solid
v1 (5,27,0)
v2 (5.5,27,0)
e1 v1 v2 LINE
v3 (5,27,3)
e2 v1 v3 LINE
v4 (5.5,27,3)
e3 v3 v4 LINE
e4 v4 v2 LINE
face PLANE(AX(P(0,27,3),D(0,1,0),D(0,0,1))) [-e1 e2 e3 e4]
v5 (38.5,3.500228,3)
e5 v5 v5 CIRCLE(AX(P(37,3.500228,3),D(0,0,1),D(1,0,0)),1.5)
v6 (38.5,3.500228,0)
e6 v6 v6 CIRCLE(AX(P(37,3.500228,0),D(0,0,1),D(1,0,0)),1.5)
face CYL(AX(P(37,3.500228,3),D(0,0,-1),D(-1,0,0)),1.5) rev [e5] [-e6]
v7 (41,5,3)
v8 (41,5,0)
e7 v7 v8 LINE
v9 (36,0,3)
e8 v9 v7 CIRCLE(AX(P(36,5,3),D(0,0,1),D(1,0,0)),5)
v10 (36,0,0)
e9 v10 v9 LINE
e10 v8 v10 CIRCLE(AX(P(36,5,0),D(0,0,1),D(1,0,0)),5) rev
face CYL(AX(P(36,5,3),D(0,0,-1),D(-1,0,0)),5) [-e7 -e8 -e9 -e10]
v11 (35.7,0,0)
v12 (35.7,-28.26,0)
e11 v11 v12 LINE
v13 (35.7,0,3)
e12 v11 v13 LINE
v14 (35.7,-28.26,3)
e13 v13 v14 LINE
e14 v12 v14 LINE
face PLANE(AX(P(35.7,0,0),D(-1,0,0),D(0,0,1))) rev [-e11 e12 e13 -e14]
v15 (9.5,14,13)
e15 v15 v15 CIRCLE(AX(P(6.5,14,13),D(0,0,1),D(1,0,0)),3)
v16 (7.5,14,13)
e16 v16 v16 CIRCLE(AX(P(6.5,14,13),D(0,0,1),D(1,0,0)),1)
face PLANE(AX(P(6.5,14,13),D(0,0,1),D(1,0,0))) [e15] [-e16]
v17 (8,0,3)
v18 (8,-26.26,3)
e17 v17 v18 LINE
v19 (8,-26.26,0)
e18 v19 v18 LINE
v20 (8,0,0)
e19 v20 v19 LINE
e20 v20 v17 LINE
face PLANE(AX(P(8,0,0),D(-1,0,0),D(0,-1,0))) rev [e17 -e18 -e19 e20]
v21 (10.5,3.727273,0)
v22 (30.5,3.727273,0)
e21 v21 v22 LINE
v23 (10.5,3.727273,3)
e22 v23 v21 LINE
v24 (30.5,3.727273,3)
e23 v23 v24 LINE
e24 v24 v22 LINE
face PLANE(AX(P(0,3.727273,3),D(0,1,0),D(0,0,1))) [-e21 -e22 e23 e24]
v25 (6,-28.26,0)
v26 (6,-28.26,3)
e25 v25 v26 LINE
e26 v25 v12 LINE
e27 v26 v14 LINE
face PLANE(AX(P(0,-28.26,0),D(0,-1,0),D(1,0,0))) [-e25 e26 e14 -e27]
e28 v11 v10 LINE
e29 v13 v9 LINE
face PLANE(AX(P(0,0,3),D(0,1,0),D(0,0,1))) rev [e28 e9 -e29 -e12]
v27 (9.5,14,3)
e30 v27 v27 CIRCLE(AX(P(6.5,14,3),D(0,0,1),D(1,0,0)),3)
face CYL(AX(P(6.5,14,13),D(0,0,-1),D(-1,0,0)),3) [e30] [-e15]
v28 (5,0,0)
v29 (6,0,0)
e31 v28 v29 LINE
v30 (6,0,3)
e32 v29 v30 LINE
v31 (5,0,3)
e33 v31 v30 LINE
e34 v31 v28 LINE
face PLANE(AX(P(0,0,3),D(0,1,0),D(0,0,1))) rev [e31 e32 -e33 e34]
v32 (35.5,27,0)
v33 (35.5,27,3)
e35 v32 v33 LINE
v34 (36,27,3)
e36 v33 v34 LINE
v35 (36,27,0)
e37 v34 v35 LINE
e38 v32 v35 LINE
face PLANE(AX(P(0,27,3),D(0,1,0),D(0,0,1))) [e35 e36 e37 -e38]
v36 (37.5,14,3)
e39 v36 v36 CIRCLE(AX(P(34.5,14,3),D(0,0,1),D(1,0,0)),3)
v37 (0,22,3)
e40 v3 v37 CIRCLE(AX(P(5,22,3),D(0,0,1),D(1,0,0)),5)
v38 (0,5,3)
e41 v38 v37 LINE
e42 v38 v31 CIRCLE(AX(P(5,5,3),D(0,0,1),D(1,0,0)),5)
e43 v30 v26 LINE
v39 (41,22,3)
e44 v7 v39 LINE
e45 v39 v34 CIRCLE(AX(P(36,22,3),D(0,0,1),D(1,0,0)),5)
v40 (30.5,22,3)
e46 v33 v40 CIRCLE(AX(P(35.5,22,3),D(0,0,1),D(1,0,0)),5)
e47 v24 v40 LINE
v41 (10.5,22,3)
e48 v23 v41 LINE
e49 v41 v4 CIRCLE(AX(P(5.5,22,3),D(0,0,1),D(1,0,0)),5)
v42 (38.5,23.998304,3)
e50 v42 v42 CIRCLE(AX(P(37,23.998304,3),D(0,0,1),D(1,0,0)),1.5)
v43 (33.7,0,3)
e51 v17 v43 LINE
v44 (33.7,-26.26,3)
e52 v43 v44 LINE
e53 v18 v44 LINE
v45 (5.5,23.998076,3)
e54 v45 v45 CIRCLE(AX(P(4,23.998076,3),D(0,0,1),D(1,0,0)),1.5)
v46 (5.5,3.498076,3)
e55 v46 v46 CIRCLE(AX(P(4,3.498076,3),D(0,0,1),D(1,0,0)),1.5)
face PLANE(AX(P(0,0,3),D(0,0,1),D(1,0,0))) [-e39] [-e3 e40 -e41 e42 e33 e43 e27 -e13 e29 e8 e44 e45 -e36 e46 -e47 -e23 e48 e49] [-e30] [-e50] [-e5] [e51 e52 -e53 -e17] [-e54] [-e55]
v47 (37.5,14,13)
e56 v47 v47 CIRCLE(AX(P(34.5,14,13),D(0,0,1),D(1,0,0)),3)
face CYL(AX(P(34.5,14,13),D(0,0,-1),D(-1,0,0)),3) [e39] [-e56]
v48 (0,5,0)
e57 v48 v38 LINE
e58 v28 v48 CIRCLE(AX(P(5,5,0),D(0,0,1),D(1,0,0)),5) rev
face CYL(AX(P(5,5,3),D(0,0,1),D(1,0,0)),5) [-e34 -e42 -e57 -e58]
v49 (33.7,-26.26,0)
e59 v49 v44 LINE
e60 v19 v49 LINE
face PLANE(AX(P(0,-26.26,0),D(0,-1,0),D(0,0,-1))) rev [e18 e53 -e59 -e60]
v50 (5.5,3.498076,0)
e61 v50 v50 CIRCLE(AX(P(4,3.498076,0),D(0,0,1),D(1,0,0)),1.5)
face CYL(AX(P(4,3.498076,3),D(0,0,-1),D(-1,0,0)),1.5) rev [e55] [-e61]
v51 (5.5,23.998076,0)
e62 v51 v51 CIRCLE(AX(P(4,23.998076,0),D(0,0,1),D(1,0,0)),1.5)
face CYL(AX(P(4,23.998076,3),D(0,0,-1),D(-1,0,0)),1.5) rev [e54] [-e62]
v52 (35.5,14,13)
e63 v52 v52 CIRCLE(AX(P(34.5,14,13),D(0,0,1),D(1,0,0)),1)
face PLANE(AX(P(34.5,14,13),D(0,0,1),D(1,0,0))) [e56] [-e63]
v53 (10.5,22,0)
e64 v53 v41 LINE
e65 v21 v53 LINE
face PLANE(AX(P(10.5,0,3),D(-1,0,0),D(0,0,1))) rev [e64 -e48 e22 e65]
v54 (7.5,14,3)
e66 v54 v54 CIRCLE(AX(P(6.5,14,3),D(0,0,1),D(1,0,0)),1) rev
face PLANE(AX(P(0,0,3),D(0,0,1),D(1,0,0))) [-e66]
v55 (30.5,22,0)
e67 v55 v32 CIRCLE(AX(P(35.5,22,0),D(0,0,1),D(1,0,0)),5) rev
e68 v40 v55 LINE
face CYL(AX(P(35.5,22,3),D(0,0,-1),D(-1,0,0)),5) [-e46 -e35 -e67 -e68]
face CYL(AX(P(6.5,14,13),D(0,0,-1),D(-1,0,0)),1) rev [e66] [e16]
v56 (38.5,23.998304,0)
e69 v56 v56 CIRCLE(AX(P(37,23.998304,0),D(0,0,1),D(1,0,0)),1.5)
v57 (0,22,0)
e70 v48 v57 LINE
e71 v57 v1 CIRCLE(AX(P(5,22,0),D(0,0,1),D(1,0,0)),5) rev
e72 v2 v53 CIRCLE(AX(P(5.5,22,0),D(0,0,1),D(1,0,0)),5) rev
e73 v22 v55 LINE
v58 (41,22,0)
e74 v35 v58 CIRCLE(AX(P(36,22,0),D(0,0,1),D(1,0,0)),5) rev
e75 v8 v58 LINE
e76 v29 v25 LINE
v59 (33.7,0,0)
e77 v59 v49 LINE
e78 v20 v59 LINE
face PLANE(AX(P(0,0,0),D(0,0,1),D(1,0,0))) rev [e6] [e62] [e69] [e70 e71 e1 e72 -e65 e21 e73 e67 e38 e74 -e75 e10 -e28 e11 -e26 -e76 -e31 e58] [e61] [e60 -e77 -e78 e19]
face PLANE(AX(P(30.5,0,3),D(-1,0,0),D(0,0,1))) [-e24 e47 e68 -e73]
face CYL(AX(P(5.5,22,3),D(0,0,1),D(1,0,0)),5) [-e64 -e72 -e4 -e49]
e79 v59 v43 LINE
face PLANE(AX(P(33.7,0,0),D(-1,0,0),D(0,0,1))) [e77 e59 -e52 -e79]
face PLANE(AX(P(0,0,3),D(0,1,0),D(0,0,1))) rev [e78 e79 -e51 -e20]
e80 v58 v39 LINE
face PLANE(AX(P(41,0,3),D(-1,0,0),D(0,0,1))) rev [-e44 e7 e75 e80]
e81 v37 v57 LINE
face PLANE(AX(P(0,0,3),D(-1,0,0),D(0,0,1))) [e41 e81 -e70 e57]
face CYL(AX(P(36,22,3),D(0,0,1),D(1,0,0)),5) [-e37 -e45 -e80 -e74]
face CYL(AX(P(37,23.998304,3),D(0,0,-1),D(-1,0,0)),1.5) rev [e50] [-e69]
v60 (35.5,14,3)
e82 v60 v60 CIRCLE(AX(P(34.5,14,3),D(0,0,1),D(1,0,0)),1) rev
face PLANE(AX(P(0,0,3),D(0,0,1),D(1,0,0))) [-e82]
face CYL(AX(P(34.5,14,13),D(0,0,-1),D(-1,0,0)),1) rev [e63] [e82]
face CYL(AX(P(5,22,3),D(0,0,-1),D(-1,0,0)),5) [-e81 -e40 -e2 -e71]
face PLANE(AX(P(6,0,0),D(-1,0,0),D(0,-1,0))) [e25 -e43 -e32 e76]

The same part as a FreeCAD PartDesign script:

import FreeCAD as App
import Part
import Sketcher
Q = App.Units.Quantity


def edges_at(feature, points):
    """Names of the edges that pass closest to the given points."""
    edges = feature.Shape.Edges
    near = lambda p: min(range(len(edges)), key=lambda i: edges[i].distToShape(Part.Vertex(*p))[0])
    return sorted({f"Edge{near(p) + 1}" for p in points})


def add_polygon(sketch, points):
    """Adds a closed chain of lines whose ends are joined by coincident constraints."""
    first, n = sketch.GeometryCount, len(points)
    for a, b in zip(points, points[1:] + points[:1]):
        sketch.addGeometry(Part.LineSegment(App.Vector(*a, 0), App.Vector(*b, 0)), False)
    for i in range(n):
        sketch.addConstraint(Sketcher.Constraint("Coincident", first + i, 2, first + (i + 1) % n, 1))

doc = App.newDocument("Part")
body = doc.addObject("PartDesign::Body", "Body")

sketch1 = body.newObject("Sketcher::SketchObject", "Sketch")
sketch1.AttachmentSupport = (doc.getObject("XY_Plane"), [""])
sketch1.MapMode = "FlatFace"
add_polygon(sketch1, [(0, 27), (0, 0), (41, 0), (41, 27), (30.5, 27), (30.5, 3.7), (10.5, 3.7), (10.5, 27)])
sketch1.addGeometry(Part.Circle(App.Vector(4, 3.5, 0), App.Vector(0, 0, 1), 1.5), False)
sketch1.addGeometry(Part.Circle(App.Vector(37, 3.5, 0), App.Vector(0, 0, 1), 1.5), False)
sketch1.addGeometry(Part.Circle(App.Vector(4, 24, 0), App.Vector(0, 0, 1), 1.5), False)
sketch1.addGeometry(Part.Circle(App.Vector(37, 24, 0), App.Vector(0, 0, 1), 1.5), False)
sketch1.addConstraint(Sketcher.Constraint("Vertical", 0))
sketch1.addConstraint(Sketcher.Constraint("Horizontal", 1))
sketch1.addConstraint(Sketcher.Constraint("Vertical", 2))
sketch1.addConstraint(Sketcher.Constraint("Horizontal", 3))
sketch1.addConstraint(Sketcher.Constraint("Vertical", 4))
sketch1.addConstraint(Sketcher.Constraint("Horizontal", 5))
sketch1.addConstraint(Sketcher.Constraint("Vertical", 6))
sketch1.addConstraint(Sketcher.Constraint("Horizontal", 7))
sketch1.addConstraint(Sketcher.Constraint("Coincident", 0, 2, -1, 1))
sketch1.addConstraint(Sketcher.Constraint("Equal", 8, 9))
sketch1.addConstraint(Sketcher.Constraint("Equal", 9, 10))
sketch1.addConstraint(Sketcher.Constraint("Equal", 10, 11))
sketch1.addConstraint(Sketcher.Constraint("Horizontal", 3, 2, 6, 2))
sketch1.addConstraint(Sketcher.Constraint("Vertical", 8, 3, 10, 3))
sketch1.addConstraint(Sketcher.Constraint("Vertical", 9, 3, 11, 3))
sketch1.addConstraint(Sketcher.Constraint("Equal", 3, 7))
sketch1.addConstraint(Sketcher.Constraint("Diameter", 8, Q("3 mm")))
sketch1.addConstraint(Sketcher.Constraint("DistanceX", 1, 1, 1, 2, Q("41 mm")))
sketch1.addConstraint(Sketcher.Constraint("DistanceX", 5, 2, 5, 1, Q("20 mm")))
sketch1.addConstraint(Sketcher.Constraint("DistanceY", 0, 2, 0, 1, Q("27 mm")))
sketch1.addConstraint(Sketcher.Constraint("DistanceX", -1, 1, 8, 3, Q("4 mm")))
sketch1.addConstraint(Sketcher.Constraint("DistanceX", -1, 1, 9, 3, Q("37 mm")))
sketch1.addConstraint(Sketcher.Constraint("DistanceY", 8, 3, 10, 3, Q("20.5 mm")))
sketch1.addConstraint(Sketcher.Constraint("DistanceY", 4, 2, 4, 1, Q("23.272727 mm")))
sketch1.addConstraint(Sketcher.Constraint("DistanceY", -1, 1, 9, 3, Q("3.500228 mm")))
sketch1.addConstraint(Sketcher.Constraint("DistanceY", 10, 3, 11, 3, Q("0.000228 mm")))
sketch1.addConstraint(Sketcher.Constraint("DistanceY", 4, 2, 11, 3, Q("20.271032 mm")))
pad1 = body.newObject("PartDesign::Pad", "Pad")
pad1.Profile = sketch1
pad1.Length = 3

sketch2 = body.newObject("Sketcher::SketchObject", "Sketch001")
sketch2.AttachmentSupport = (doc.getObject("XY_Plane"), [""])
sketch2.MapMode = "FlatFace"
sketch2.AttachmentOffset = App.Placement(App.Vector(0, 0, 3), App.Rotation())
sketch2.addGeometry(Part.Circle(App.Vector(6.5, 14, 0), App.Vector(0, 0, 1), 3), False)
sketch2.addGeometry(Part.Circle(App.Vector(6.5, 14, 0), App.Vector(0, 0, 1), 1), False)
sketch2.addGeometry(Part.Circle(App.Vector(34.5, 14, 0), App.Vector(0, 0, 1), 3), False)
sketch2.addGeometry(Part.Circle(App.Vector(34.5, 14, 0), App.Vector(0, 0, 1), 1), False)
sketch2.addConstraint(Sketcher.Constraint("Coincident", 1, 3, 0, 3))
sketch2.addConstraint(Sketcher.Constraint("Coincident", 3, 3, 2, 3))
sketch2.addConstraint(Sketcher.Constraint("Equal", 0, 2))
sketch2.addConstraint(Sketcher.Constraint("Equal", 1, 3))
sketch2.addConstraint(Sketcher.Constraint("Horizontal", 1, 3, 2, 3))
sketch2.addConstraint(Sketcher.Constraint("Diameter", 0, Q("6 mm")))
sketch2.addConstraint(Sketcher.Constraint("Diameter", 1, Q("2 mm")))
sketch2.addConstraint(Sketcher.Constraint("DistanceY", -1, 1, 0, 3, Q("14 mm")))
sketch2.addConstraint(Sketcher.Constraint("DistanceX", 0, 3, 2, 3, Q("28 mm")))
sketch2.addConstraint(Sketcher.Constraint("DistanceX", -1, 1, 0, 3, Q("6.5 mm")))
pad2 = body.newObject("PartDesign::Pad", "Pad001")
pad2.Profile = sketch2
pad2.Length = 10
doc.recompute()

fillet = body.newObject("PartDesign::Fillet", "Fillet")
fillet.Base = (pad2, edges_at(pad2, [
    (30.5, 27, 1.5),
    (41, 27, 1.5),
    (41, 0, 1.5),
    (0, 0, 1.5),
    (0, 27, 1.5),
    (10.5, 27, 1.5),
]))
fillet.Radius = 5

sketch3 = body.newObject("Sketcher::SketchObject", "Sketch002")
sketch3.AttachmentSupport = (doc.getObject("XY_Plane"), [""])
sketch3.MapMode = "FlatFace"
sketch3.AttachmentOffset = App.Placement(App.Vector(0, 0, 3), App.Rotation())
add_polygon(sketch3, [(8, 0), (6, 0), (6, -28.3), (35.7, -28.3), (35.7, 0), (33.7, 0), (33.7, -26.3), (8, -26.3)])
sketch3.addConstraint(Sketcher.Constraint("Horizontal", 0))
sketch3.addConstraint(Sketcher.Constraint("Vertical", 1))
sketch3.addConstraint(Sketcher.Constraint("Horizontal", 2))
sketch3.addConstraint(Sketcher.Constraint("Vertical", 3))
sketch3.addConstraint(Sketcher.Constraint("Horizontal", 4))
sketch3.addConstraint(Sketcher.Constraint("Vertical", 5))
sketch3.addConstraint(Sketcher.Constraint("Horizontal", 6))
sketch3.addConstraint(Sketcher.Constraint("Vertical", 7))
sketch3.addConstraint(Sketcher.Constraint("PointOnObject", 0, 2, -1))
sketch3.addConstraint(Sketcher.Constraint("PointOnObject", 3, 2, -1))
sketch3.addConstraint(Sketcher.Constraint("Equal", 0, 4))
sketch3.addConstraint(Sketcher.Constraint("DistanceX", 0, 2, 0, 1, Q("2 mm")))
sketch3.addConstraint(Sketcher.Constraint("DistanceX", 2, 1, 2, 2, Q("29.7 mm")))
sketch3.addConstraint(Sketcher.Constraint("DistanceX", -1, 1, 0, 2, Q("6 mm")))
sketch3.addConstraint(Sketcher.Constraint("DistanceY", 2, 2, 5, 2, Q("2 mm")))
sketch3.addConstraint(Sketcher.Constraint("DistanceY", 1, 2, 1, 1, Q("28.26 mm")))
pad3 = body.newObject("PartDesign::Pad", "Pad002")
pad3.Profile = sketch3
pad3.Length = 3
pad3.Reversed = True

doc.recompute()
